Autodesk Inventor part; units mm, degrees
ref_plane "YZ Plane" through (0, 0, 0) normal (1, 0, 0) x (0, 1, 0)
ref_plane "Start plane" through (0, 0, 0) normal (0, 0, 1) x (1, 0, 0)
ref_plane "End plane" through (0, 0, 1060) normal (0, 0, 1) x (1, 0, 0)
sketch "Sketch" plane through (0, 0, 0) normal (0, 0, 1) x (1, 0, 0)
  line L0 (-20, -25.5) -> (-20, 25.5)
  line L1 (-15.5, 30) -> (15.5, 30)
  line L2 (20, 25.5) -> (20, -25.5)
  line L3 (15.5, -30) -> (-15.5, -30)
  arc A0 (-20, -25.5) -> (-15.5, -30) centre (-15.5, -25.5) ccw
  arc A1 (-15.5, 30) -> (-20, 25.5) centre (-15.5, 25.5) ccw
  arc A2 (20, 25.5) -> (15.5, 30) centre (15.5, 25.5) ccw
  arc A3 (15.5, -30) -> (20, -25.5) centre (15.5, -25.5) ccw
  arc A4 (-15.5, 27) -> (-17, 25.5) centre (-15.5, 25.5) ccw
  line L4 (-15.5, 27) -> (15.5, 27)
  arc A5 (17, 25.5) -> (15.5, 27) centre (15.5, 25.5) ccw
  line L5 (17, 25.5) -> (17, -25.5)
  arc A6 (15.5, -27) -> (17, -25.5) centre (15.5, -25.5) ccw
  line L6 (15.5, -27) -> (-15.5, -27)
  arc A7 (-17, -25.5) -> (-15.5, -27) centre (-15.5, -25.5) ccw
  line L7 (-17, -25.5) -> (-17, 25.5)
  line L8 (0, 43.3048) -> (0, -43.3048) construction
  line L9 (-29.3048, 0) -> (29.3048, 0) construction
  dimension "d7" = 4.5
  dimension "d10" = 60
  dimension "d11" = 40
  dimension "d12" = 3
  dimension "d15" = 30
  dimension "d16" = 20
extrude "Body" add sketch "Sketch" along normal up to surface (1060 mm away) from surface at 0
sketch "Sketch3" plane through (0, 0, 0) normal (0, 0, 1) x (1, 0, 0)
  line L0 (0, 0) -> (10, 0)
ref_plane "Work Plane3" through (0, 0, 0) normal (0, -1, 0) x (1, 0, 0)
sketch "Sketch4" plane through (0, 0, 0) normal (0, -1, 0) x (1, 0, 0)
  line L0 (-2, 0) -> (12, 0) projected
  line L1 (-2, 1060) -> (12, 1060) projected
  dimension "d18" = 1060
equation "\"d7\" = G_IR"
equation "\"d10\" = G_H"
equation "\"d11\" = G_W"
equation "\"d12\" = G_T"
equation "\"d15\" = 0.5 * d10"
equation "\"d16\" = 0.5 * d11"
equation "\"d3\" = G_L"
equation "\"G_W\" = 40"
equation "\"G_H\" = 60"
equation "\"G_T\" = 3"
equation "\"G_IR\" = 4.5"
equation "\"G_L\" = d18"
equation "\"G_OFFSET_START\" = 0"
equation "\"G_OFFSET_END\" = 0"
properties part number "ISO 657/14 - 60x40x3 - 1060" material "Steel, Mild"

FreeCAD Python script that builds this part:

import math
import FreeCAD as App
import Part
import Sketcher
Q = App.Units.Quantity

doc = App.newDocument("Part")
body = doc.addObject("PartDesign::Body", "Body")

# Sketch on XY plane
sketch1 = body.newObject("Sketcher::SketchObject", "Sketch")
sketch1.AttachmentSupport = (doc.getObject("XY_Plane"), [""])
sketch1.MapMode = "FlatFace"
sketch1.addGeometry(Part.LineSegment(App.Vector(-20, 25.5, 0), App.Vector(-20, -25.5, 0)), False)
sketch1.addGeometry(Part.ArcOfCircle(Part.Circle(App.Vector(-15.5, -25.5, 0), App.Vector(0, 0, 1), 4.5), math.radians(180), math.radians(270)), False)
sketch1.addGeometry(Part.LineSegment(App.Vector(-15.5, -30, 0), App.Vector(15.5, -30, 0)), False)
sketch1.addGeometry(Part.ArcOfCircle(Part.Circle(App.Vector(15.5, -25.5, 0), App.Vector(0, 0, 1), 4.5), math.radians(-90), math.radians(0)), False)
sketch1.addGeometry(Part.LineSegment(App.Vector(20, -25.5, 0), App.Vector(20, 25.5, 0)), False)
sketch1.addGeometry(Part.ArcOfCircle(Part.Circle(App.Vector(15.5, 25.5, 0), App.Vector(0, 0, 1), 4.5), math.radians(0), math.radians(90)), False)
sketch1.addGeometry(Part.LineSegment(App.Vector(15.5, 30, 0), App.Vector(-15.5, 30, 0)), False)
sketch1.addGeometry(Part.ArcOfCircle(Part.Circle(App.Vector(-15.5, 25.5, 0), App.Vector(0, 0, 1), 4.5), math.radians(90), math.radians(180)), False)
sketch1.addGeometry(Part.ArcOfCircle(Part.Circle(App.Vector(-15.5, 25.5, 0), App.Vector(0, 0, 1), 1.5), math.radians(90), math.radians(180)), False)
sketch1.addGeometry(Part.LineSegment(App.Vector(-15.5, 27, 0), App.Vector(15.5, 27, 0)), False)
sketch1.addGeometry(Part.ArcOfCircle(Part.Circle(App.Vector(15.5, 25.5, 0), App.Vector(0, 0, 1), 1.5), math.radians(0), math.radians(90)), False)
sketch1.addGeometry(Part.LineSegment(App.Vector(17, 25.5, 0), App.Vector(17, -25.5, 0)), False)
sketch1.addGeometry(Part.ArcOfCircle(Part.Circle(App.Vector(15.5, -25.5, 0), App.Vector(0, 0, 1), 1.5), math.radians(-90), math.radians(0)), False)
sketch1.addGeometry(Part.LineSegment(App.Vector(15.5, -27, 0), App.Vector(-15.5, -27, 0)), False)
sketch1.addGeometry(Part.ArcOfCircle(Part.Circle(App.Vector(-15.5, -25.5, 0), App.Vector(0, 0, 1), 1.5), math.radians(180), math.radians(270)), False)
sketch1.addGeometry(Part.LineSegment(App.Vector(-17, -25.5, 0), App.Vector(-17, 25.5, 0)), False)
sketch1.addConstraint(Sketcher.Constraint("Tangent", 0, 2, 1, 1))
sketch1.addConstraint(Sketcher.Constraint("Tangent", 1, 2, 2, 1))
sketch1.addConstraint(Sketcher.Constraint("Tangent", 2, 2, 3, 1))
sketch1.addConstraint(Sketcher.Constraint("Tangent", 3, 2, 4, 1))
sketch1.addConstraint(Sketcher.Constraint("Tangent", 4, 2, 5, 1))
sketch1.addConstraint(Sketcher.Constraint("Tangent", 5, 2, 6, 1))
sketch1.addConstraint(Sketcher.Constraint("Tangent", 6, 2, 7, 1))
sketch1.addConstraint(Sketcher.Constraint("Tangent", 7, 2, 0, 1))
sketch1.addConstraint(Sketcher.Constraint("Tangent", 8, 1, 9, 1))
sketch1.addConstraint(Sketcher.Constraint("Tangent", 9, 2, 10, 2))
sketch1.addConstraint(Sketcher.Constraint("Tangent", 10, 1, 11, 1))
sketch1.addConstraint(Sketcher.Constraint("Tangent", 11, 2, 12, 2))
sketch1.addConstraint(Sketcher.Constraint("Tangent", 12, 1, 13, 1))
sketch1.addConstraint(Sketcher.Constraint("Tangent", 13, 2, 14, 2))
sketch1.addConstraint(Sketcher.Constraint("Tangent", 14, 1, 15, 1))
sketch1.addConstraint(Sketcher.Constraint("Tangent", 15, 2, 8, 2))
sketch1.addConstraint(Sketcher.Constraint("Vertical", 0))
sketch1.addConstraint(Sketcher.Constraint("Horizontal", 2))
sketch1.addConstraint(Sketcher.Constraint("Vertical", 4))
sketch1.addConstraint(Sketcher.Constraint("Horizontal", 6))
sketch1.addConstraint(Sketcher.Constraint("Horizontal", 9))
sketch1.addConstraint(Sketcher.Constraint("Vertical", 11))
sketch1.addConstraint(Sketcher.Constraint("Horizontal", 13))
sketch1.addConstraint(Sketcher.Constraint("Vertical", 15))
sketch1.addConstraint(Sketcher.Constraint("Coincident", 8, 3, 7, 3))
sketch1.addConstraint(Sketcher.Constraint("Coincident", 10, 3, 5, 3))
sketch1.addConstraint(Sketcher.Constraint("Coincident", 12, 3, 3, 3))
sketch1.addConstraint(Sketcher.Constraint("Equal", 1, 3))
sketch1.addConstraint(Sketcher.Constraint("Equal", 3, 5))
sketch1.addConstraint(Sketcher.Constraint("Equal", 5, 7))
sketch1.addConstraint(Sketcher.Constraint("Equal", 12, 14))
sketch1.addConstraint(Sketcher.Constraint("Symmetric", 1, 3, 5, 3, -1, 1))
sketch1.addConstraint(Sketcher.Constraint("Radius", 1, Q("4.5 mm")))
sketch1.addConstraint(Sketcher.Constraint("Radius", 8, Q("1.5 mm")))
sketch1.addConstraint(Sketcher.Constraint("DistanceX", 0, 2, -1, 1, Q("20 mm")))
sketch1.addConstraint(Sketcher.Constraint("DistanceY", 1, 2, -1, 1, Q("30 mm")))
pad1 = body.newObject("PartDesign::Pad", "Pad")
pad1.Profile = sketch1
pad1.Length = 1060

doc.recompute()
